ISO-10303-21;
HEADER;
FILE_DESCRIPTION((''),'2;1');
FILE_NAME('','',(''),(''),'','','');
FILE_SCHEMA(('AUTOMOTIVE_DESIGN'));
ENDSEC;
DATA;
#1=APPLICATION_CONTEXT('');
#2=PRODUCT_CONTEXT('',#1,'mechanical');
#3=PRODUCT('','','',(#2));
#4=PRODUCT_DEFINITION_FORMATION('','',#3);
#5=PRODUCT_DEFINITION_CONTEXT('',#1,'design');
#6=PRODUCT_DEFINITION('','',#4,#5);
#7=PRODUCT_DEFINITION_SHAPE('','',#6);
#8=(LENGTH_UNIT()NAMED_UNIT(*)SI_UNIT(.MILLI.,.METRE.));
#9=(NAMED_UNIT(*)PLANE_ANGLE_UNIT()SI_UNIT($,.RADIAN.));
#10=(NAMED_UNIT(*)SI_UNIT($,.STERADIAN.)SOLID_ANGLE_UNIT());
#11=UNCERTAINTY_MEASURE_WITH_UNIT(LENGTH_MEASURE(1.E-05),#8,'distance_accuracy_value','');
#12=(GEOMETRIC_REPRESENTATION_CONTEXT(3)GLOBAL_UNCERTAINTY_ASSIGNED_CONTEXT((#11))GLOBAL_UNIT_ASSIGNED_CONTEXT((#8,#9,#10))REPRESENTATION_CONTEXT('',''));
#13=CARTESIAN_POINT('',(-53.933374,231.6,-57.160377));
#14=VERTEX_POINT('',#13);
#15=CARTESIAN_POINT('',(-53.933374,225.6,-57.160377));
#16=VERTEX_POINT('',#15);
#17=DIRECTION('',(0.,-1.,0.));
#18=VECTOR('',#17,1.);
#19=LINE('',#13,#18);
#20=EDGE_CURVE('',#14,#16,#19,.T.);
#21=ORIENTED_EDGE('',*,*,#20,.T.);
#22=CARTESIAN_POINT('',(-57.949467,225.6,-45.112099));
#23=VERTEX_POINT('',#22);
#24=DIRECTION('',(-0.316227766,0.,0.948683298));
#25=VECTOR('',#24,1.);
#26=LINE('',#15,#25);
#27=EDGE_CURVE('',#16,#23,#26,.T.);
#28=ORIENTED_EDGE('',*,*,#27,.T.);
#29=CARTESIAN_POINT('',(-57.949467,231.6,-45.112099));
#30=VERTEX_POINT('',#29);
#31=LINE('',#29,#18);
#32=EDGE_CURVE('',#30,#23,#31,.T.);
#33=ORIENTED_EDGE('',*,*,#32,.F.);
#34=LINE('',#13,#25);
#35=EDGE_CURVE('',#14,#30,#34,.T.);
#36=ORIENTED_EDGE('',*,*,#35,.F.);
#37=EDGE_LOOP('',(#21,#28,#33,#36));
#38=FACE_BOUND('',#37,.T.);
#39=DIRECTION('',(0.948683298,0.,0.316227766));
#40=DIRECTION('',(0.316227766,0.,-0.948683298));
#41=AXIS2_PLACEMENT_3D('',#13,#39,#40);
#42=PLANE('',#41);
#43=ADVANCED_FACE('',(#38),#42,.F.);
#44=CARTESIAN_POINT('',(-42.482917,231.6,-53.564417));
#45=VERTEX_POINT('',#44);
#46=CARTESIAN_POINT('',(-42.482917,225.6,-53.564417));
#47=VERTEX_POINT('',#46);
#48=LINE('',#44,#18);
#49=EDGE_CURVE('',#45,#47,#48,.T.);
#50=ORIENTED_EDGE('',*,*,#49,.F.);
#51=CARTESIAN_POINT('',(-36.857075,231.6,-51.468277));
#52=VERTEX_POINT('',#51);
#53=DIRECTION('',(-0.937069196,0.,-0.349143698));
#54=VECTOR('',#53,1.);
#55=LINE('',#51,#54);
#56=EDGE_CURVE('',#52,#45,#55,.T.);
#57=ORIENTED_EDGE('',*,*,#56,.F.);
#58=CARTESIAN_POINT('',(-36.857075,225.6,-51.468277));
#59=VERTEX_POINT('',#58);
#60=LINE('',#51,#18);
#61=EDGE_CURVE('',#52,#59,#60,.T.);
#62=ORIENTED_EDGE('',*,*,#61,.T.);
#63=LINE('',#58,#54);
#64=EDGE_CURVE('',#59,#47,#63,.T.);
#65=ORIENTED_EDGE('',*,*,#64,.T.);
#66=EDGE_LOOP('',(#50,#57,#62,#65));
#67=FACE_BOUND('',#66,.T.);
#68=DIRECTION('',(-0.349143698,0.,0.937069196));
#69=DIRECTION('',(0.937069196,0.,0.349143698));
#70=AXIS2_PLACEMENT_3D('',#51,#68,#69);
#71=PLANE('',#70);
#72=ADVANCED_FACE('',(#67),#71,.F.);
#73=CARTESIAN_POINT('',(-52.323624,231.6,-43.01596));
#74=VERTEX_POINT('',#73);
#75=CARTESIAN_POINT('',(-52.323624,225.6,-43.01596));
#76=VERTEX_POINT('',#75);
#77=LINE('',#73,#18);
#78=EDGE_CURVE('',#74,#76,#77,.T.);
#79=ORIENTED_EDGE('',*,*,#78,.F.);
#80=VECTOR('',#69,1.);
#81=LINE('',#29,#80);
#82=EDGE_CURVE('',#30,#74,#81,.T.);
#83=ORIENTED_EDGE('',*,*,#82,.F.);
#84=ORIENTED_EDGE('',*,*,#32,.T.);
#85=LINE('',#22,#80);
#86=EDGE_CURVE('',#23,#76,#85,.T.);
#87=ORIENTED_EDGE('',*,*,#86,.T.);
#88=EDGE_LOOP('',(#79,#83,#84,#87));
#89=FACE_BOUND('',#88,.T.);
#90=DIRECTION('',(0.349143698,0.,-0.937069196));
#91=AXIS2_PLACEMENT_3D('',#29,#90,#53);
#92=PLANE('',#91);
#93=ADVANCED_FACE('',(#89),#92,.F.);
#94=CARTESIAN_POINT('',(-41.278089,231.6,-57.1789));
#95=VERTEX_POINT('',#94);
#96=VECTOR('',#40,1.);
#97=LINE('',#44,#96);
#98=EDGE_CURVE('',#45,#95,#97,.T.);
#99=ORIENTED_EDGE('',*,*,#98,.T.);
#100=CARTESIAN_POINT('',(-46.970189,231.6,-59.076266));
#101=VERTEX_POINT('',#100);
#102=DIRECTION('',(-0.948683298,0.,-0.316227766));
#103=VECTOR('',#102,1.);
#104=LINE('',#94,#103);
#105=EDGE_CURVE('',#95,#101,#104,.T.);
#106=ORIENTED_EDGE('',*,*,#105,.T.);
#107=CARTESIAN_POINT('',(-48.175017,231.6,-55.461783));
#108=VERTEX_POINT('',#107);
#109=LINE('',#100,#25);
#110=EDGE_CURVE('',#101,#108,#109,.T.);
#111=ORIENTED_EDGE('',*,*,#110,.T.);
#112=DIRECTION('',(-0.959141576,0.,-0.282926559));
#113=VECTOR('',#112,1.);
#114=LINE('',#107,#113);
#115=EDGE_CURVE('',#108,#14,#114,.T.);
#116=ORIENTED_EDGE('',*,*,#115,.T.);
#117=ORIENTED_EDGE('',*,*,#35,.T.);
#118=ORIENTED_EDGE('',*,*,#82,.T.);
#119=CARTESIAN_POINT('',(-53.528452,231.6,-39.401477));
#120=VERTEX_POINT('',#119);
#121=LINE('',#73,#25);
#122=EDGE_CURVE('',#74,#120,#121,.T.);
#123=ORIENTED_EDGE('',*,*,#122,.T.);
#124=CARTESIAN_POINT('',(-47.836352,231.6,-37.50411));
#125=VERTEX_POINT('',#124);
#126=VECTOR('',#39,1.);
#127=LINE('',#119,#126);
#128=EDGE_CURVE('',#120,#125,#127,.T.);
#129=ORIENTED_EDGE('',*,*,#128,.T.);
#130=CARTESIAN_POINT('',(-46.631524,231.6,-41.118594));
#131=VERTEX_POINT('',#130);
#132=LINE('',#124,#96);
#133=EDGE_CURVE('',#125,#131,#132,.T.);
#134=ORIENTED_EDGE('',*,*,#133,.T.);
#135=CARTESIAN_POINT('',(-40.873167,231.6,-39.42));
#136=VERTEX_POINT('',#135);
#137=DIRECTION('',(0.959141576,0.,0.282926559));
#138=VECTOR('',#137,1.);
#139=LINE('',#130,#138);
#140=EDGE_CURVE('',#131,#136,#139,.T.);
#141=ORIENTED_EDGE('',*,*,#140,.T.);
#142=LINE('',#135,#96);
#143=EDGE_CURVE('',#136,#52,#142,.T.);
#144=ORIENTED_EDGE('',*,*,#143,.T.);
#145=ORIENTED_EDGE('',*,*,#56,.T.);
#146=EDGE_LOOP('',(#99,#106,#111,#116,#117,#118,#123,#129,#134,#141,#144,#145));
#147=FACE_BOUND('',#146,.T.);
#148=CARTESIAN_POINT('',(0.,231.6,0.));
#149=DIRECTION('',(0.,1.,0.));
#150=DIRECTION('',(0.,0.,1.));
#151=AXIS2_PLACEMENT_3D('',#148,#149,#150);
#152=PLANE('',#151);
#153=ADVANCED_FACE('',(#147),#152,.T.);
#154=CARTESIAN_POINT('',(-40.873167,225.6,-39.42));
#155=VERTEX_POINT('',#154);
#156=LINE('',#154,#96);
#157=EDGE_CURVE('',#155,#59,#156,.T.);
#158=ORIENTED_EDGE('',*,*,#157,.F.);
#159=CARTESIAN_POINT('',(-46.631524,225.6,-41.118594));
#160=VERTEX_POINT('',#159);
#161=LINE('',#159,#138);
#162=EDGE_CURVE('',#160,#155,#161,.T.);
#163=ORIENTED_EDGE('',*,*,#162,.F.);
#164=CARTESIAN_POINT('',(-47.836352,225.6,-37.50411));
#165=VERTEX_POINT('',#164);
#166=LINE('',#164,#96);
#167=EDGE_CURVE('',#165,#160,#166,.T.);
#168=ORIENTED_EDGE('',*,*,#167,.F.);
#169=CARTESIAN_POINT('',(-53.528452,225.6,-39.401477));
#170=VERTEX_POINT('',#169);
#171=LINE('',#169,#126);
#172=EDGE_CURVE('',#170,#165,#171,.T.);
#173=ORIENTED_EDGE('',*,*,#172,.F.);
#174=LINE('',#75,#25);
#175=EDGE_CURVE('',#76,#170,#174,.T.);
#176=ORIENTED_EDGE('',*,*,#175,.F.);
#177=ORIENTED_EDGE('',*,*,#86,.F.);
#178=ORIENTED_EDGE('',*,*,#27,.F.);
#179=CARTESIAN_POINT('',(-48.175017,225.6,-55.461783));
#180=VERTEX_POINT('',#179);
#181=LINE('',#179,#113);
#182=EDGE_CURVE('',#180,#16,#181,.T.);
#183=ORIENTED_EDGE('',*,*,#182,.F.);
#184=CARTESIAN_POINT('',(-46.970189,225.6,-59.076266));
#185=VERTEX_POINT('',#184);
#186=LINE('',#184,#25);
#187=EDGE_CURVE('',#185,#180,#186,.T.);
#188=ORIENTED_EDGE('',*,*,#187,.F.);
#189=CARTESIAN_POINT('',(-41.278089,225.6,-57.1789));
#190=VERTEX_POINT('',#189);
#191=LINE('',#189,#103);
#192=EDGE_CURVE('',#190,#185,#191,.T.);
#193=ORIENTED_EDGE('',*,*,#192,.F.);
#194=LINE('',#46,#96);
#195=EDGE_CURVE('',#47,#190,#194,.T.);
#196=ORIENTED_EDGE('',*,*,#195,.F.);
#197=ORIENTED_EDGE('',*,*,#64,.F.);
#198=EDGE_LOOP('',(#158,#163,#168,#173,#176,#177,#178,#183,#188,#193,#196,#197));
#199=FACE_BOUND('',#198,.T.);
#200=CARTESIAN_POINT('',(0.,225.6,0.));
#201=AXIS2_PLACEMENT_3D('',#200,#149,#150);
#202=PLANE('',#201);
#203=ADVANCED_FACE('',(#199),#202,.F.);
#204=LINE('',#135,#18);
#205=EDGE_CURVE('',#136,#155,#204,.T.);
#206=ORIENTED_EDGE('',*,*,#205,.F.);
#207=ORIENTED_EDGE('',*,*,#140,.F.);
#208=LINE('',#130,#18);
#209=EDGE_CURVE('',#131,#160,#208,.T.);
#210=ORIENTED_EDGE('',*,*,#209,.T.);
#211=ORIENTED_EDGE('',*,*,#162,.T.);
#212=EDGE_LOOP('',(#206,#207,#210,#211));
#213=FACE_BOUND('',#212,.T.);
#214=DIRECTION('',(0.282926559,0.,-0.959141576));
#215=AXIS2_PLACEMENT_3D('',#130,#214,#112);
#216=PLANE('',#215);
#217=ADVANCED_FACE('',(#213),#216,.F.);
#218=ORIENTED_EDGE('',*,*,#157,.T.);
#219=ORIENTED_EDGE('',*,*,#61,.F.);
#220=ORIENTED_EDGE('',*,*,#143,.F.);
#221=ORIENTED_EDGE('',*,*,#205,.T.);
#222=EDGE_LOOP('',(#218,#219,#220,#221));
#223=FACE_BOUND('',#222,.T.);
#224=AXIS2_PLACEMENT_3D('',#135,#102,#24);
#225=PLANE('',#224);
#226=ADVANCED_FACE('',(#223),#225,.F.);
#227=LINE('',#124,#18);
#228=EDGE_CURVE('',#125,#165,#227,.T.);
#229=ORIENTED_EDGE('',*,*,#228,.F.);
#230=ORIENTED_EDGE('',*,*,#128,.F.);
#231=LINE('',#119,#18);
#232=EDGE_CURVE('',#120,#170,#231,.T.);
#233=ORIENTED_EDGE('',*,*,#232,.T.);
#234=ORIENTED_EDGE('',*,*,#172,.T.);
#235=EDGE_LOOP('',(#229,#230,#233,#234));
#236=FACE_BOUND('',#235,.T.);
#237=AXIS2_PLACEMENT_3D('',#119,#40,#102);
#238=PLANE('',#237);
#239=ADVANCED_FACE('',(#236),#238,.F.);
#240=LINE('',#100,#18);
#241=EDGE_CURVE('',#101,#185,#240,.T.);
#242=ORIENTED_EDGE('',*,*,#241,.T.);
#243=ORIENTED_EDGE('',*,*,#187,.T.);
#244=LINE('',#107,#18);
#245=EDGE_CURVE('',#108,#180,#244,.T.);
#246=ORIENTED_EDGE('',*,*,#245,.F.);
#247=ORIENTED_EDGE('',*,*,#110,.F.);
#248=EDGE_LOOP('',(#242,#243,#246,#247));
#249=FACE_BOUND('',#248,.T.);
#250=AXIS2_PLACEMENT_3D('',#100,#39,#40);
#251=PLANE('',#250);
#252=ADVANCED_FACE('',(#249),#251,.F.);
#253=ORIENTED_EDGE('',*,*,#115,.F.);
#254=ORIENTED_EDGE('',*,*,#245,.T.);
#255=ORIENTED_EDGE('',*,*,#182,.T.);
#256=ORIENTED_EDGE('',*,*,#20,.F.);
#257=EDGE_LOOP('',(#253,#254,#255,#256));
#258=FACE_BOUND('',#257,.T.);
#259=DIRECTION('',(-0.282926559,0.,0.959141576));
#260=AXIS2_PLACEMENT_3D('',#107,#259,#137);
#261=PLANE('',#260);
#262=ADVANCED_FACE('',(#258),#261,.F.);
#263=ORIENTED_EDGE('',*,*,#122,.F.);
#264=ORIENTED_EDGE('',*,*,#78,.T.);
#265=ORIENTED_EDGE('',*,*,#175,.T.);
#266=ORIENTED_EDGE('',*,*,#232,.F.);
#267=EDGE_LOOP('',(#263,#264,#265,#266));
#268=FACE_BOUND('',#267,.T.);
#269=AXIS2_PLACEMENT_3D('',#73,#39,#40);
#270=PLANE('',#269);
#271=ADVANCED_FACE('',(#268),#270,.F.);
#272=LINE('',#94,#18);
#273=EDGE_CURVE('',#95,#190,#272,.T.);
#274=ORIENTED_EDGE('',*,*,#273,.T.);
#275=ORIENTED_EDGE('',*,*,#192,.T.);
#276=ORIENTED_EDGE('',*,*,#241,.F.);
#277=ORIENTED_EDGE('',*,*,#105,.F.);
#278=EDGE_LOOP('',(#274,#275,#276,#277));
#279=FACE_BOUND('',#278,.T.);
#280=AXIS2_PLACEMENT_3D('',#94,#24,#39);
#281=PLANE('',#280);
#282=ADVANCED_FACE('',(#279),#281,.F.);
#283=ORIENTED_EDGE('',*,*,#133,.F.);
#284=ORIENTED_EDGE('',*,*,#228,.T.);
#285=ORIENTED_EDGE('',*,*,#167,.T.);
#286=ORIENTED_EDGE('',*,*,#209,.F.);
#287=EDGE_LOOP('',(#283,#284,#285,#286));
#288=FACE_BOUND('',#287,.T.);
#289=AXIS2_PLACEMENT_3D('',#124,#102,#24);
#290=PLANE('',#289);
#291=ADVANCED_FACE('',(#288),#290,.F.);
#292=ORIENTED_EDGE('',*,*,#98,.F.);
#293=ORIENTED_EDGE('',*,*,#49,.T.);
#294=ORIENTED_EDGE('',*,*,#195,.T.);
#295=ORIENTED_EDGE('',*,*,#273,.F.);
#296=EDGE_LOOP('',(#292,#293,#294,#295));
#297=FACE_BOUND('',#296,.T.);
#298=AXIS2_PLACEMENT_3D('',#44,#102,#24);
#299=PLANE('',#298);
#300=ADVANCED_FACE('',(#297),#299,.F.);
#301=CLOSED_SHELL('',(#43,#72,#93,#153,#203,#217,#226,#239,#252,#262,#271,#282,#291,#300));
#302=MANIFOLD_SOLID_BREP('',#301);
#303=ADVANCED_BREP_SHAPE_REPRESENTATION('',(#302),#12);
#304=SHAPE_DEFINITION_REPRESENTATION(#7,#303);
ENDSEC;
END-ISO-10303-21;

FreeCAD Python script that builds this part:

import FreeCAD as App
import Part
import Sketcher

V = App.Vector
Q = App.Units.Quantity


def add_polygon(sketch, points):
    """Adds a closed chain of lines whose ends are joined by coincident constraints."""
    first, n = sketch.GeometryCount, len(points)
    for a, b in zip(points, points[1:] + points[:1]):
        sketch.addGeometry(Part.LineSegment(App.Vector(*a, 0), App.Vector(*b, 0)), False)
    for i in range(n):
        sketch.addConstraint(Sketcher.Constraint("Coincident", first + i, 2, first + (i + 1) % n, 1))

doc = App.newDocument("Part")
body = doc.addObject("PartDesign::Body", "Body")

# Sketch on XZ plane
sketch1 = doc.addObject("Sketcher::SketchObject", "Sketch")
body.addObject(sketch1)
sketch1.AttachmentSupport = (doc.XZ_Plane, [""])
sketch1.MapMode = "FlatFace"
sketch1.AttachmentOffset = App.Placement(V(0, 0, -228.6), App.Rotation())
add_polygon(sketch1, [(-41.3, -57.2), (-47, -59.1), (-48.2, -55.5), (-53.9, -57.2), (-57.9, -45.1), (-52.3, -43), (-53.5, -39.4), (-47.8, -37.5), (-46.6, -41.1), (-40.9, -39.4), (-36.9, -51.5), (-42.5, -53.6)])  # lines 0-11
sketch1.addConstraint([
    Sketcher.Constraint("Perpendicular", 0, 1),
    Sketcher.Constraint("Parallel", 1, 3),
    Sketcher.Constraint("Parallel", 3, 5),
    Sketcher.Constraint("Perpendicular", 5, 6),
    Sketcher.Constraint("Perpendicular", 6, 7),
    Sketcher.Constraint("Parallel", 2, 8),
    Sketcher.Constraint("Parallel", 7, 9),
    Sketcher.Constraint("Parallel", 4, 10),
    Sketcher.Constraint("Parallel", 9, 11),
    Sketcher.Constraint("Equal", 2, 4),
    Sketcher.Constraint("Equal", 1, 5),
    Sketcher.Constraint("Equal", 0, 6),
    Sketcher.Constraint("Equal", 5, 7),
    Sketcher.Constraint("Equal", 4, 8),
    Sketcher.Constraint("Equal", 3, 9),
    Sketcher.Constraint("Distance", 0, Q("6 mm")),
    Sketcher.Constraint("Distance", 3, Q("12.7 mm")),
    Sketcher.Constraint("Distance", 1, Q("3.81 mm")),
    Sketcher.Constraint("DistanceY", 8, 2, -1, 1, Q("39.42 mm")),
    Sketcher.Constraint("DistanceY", 3, 2, -1, 1, Q("45.112099 mm")),
    Sketcher.Constraint("DistanceY", 11, 2, -1, 1, Q("57.1789 mm")),
    Sketcher.Constraint("DistanceX", 5, 2, 6, 2, Q("5.6921 mm")),
    Sketcher.Constraint("DistanceX", 0, 2, -1, 1, Q("46.970189 mm")),
    Sketcher.Constraint("DistanceX", 3, 2, 1, 2, Q("9.77445 mm")),
])
pad1 = doc.addObject("PartDesign::Pad", "Pad")
body.addObject(pad1)
pad1.Profile = sketch1
pad1.Length = 6
pad1.Midplane = True

doc.recompute()
